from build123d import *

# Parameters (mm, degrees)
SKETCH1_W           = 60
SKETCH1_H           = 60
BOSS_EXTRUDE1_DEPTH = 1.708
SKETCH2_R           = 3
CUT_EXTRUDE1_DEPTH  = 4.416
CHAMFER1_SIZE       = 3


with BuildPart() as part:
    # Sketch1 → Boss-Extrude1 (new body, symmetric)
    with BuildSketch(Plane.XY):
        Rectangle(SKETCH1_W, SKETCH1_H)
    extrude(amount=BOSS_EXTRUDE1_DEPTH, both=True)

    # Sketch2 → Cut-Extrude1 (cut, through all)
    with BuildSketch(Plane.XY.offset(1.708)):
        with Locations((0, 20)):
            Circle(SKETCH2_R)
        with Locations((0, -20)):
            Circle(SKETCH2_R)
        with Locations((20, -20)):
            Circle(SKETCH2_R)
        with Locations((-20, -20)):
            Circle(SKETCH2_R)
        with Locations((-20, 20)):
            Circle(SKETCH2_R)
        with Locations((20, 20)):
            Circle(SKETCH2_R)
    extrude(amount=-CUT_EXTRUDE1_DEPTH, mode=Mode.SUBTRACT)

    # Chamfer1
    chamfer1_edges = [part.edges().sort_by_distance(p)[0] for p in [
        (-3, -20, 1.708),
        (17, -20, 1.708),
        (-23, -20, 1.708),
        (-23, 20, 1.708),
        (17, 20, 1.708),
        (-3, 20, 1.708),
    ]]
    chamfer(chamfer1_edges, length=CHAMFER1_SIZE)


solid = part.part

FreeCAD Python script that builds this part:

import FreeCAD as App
import Part
import Sketcher

V = App.Vector


def edges_at(feature, points):
    """Names of the edges that pass closest to the given points."""
    edges = feature.Shape.Edges
    near = lambda p: min(range(len(edges)), key=lambda i: edges[i].distToShape(Part.Vertex(*p))[0])
    return sorted({f"Edge{near(p) + 1}" for p in points})


def add_polygon(sketch, points):
    """Adds a closed chain of lines whose ends are joined by coincident constraints."""
    first, n = sketch.GeometryCount, len(points)
    for a, b in zip(points, points[1:] + points[:1]):
        sketch.addGeometry(Part.LineSegment(App.Vector(*a, 0), App.Vector(*b, 0)), False)
    for i in range(n):
        sketch.addConstraint(Sketcher.Constraint("Coincident", first + i, 2, first + (i + 1) % n, 1))

doc = App.newDocument("Part")
body = doc.addObject("PartDesign::Body", "Body")

# Sketch on XY plane
sketch1 = doc.addObject("Sketcher::SketchObject", "Sketch")
body.addObject(sketch1)
sketch1.AttachmentSupport = (doc.XY_Plane, [""])
sketch1.MapMode = "FlatFace"
add_polygon(sketch1, [(-30, 30), (-30, -30), (30, -30), (30, 30)])  # lines 0-3
sketch1.addConstraint(Sketcher.Constraint("Vertical", 0))
sketch1.addConstraint(Sketcher.Constraint("Horizontal", 1))
sketch1.addConstraint(Sketcher.Constraint("Vertical", 2))
sketch1.addConstraint(Sketcher.Constraint("Horizontal", 3))
sketch1.addConstraint(Sketcher.Constraint("Symmetric", 0, 2, 2, 2, -1, 1))
sketch1.addConstraint(Sketcher.Constraint("Equal", 3, 0))
sketch1.addConstraint(Sketcher.Constraint("DistanceX", 1, 1, 1, 2, 60.0))
pad1 = doc.addObject("PartDesign::Pad", "Pad")
body.addObject(pad1)
pad1.Profile = sketch1
pad1.Length = 3.416
pad1.Midplane = True

# Sketch on XY plane
sketch2 = doc.addObject("Sketcher::SketchObject", "Sketch001")
body.addObject(sketch2)
sketch2.AttachmentSupport = (doc.XY_Plane, [""])
sketch2.MapMode = "FlatFace"
sketch2.AttachmentOffset = App.Placement(V(0, 0, 1.708), App.Rotation())
sketch2.addGeometry(Part.Circle(V(0, 20, 0), V(0, 0, 1), 3), False)
sketch2.addGeometry(Part.Circle(V(0, -20, 0), V(0, 0, 1), 3), False)
sketch2.addGeometry(Part.Circle(V(20, -20, 0), V(0, 0, 1), 3), False)
sketch2.addGeometry(Part.Circle(V(-20, -20, 0), V(0, 0, 1), 3), False)
sketch2.addGeometry(Part.Circle(V(-20, 20, 0), V(0, 0, 1), 3), False)
sketch2.addGeometry(Part.Circle(V(20, 20, 0), V(0, 0, 1), 3), False)
sketch2.addConstraint(Sketcher.Constraint("Equal", 0, 1))
sketch2.addConstraint(Sketcher.Constraint("Equal", 1, 2))
sketch2.addConstraint(Sketcher.Constraint("Equal", 2, 3))
sketch2.addConstraint(Sketcher.Constraint("Equal", 3, 4))
sketch2.addConstraint(Sketcher.Constraint("Equal", 4, 5))
sketch2.addConstraint(Sketcher.Constraint("Symmetric", 0, 3, 1, 3, -1, 1))
sketch2.addConstraint(Sketcher.Constraint("Symmetric", 2, 3, 4, 3, -1, 1))
sketch2.addConstraint(Sketcher.Constraint("Symmetric", 3, 3, 5, 3, -1, 1))
sketch2.addConstraint(Sketcher.Constraint("Symmetric", 2, 3, 3, 3, -2))
sketch2.addConstraint(Sketcher.Constraint("PointOnObject", 0, 3, -2))
sketch2.addConstraint(Sketcher.Constraint("Horizontal", 1, 3, 2, 3))
sketch2.addConstraint(Sketcher.Constraint("Diameter", 0, 6.0))
sketch2.addConstraint(Sketcher.Constraint("DistanceY", -1, 1, 0, 3, 20.0))
sketch2.addConstraint(Sketcher.Constraint("DistanceX", -1, 1, 2, 3, 20.0))
pocket1 = doc.addObject("PartDesign::Pocket", "Pocket")
body.addObject(pocket1)
pocket1.Profile = sketch2
pocket1.Type = "ThroughAll"
doc.recompute()

chamfer = doc.addObject("PartDesign::Chamfer", "Chamfer")
body.addObject(chamfer)
chamfer.Base = (pocket1, edges_at(pocket1, [
    (-3, -20, 1.708),
    (17, -20, 1.708),
    (-23, -20, 1.708),
    (-23, 20, 1.708),
    (17, 20, 1.708),
    (-3, 20, 1.708),
]))
chamfer.Size = 3

doc.recompute()
